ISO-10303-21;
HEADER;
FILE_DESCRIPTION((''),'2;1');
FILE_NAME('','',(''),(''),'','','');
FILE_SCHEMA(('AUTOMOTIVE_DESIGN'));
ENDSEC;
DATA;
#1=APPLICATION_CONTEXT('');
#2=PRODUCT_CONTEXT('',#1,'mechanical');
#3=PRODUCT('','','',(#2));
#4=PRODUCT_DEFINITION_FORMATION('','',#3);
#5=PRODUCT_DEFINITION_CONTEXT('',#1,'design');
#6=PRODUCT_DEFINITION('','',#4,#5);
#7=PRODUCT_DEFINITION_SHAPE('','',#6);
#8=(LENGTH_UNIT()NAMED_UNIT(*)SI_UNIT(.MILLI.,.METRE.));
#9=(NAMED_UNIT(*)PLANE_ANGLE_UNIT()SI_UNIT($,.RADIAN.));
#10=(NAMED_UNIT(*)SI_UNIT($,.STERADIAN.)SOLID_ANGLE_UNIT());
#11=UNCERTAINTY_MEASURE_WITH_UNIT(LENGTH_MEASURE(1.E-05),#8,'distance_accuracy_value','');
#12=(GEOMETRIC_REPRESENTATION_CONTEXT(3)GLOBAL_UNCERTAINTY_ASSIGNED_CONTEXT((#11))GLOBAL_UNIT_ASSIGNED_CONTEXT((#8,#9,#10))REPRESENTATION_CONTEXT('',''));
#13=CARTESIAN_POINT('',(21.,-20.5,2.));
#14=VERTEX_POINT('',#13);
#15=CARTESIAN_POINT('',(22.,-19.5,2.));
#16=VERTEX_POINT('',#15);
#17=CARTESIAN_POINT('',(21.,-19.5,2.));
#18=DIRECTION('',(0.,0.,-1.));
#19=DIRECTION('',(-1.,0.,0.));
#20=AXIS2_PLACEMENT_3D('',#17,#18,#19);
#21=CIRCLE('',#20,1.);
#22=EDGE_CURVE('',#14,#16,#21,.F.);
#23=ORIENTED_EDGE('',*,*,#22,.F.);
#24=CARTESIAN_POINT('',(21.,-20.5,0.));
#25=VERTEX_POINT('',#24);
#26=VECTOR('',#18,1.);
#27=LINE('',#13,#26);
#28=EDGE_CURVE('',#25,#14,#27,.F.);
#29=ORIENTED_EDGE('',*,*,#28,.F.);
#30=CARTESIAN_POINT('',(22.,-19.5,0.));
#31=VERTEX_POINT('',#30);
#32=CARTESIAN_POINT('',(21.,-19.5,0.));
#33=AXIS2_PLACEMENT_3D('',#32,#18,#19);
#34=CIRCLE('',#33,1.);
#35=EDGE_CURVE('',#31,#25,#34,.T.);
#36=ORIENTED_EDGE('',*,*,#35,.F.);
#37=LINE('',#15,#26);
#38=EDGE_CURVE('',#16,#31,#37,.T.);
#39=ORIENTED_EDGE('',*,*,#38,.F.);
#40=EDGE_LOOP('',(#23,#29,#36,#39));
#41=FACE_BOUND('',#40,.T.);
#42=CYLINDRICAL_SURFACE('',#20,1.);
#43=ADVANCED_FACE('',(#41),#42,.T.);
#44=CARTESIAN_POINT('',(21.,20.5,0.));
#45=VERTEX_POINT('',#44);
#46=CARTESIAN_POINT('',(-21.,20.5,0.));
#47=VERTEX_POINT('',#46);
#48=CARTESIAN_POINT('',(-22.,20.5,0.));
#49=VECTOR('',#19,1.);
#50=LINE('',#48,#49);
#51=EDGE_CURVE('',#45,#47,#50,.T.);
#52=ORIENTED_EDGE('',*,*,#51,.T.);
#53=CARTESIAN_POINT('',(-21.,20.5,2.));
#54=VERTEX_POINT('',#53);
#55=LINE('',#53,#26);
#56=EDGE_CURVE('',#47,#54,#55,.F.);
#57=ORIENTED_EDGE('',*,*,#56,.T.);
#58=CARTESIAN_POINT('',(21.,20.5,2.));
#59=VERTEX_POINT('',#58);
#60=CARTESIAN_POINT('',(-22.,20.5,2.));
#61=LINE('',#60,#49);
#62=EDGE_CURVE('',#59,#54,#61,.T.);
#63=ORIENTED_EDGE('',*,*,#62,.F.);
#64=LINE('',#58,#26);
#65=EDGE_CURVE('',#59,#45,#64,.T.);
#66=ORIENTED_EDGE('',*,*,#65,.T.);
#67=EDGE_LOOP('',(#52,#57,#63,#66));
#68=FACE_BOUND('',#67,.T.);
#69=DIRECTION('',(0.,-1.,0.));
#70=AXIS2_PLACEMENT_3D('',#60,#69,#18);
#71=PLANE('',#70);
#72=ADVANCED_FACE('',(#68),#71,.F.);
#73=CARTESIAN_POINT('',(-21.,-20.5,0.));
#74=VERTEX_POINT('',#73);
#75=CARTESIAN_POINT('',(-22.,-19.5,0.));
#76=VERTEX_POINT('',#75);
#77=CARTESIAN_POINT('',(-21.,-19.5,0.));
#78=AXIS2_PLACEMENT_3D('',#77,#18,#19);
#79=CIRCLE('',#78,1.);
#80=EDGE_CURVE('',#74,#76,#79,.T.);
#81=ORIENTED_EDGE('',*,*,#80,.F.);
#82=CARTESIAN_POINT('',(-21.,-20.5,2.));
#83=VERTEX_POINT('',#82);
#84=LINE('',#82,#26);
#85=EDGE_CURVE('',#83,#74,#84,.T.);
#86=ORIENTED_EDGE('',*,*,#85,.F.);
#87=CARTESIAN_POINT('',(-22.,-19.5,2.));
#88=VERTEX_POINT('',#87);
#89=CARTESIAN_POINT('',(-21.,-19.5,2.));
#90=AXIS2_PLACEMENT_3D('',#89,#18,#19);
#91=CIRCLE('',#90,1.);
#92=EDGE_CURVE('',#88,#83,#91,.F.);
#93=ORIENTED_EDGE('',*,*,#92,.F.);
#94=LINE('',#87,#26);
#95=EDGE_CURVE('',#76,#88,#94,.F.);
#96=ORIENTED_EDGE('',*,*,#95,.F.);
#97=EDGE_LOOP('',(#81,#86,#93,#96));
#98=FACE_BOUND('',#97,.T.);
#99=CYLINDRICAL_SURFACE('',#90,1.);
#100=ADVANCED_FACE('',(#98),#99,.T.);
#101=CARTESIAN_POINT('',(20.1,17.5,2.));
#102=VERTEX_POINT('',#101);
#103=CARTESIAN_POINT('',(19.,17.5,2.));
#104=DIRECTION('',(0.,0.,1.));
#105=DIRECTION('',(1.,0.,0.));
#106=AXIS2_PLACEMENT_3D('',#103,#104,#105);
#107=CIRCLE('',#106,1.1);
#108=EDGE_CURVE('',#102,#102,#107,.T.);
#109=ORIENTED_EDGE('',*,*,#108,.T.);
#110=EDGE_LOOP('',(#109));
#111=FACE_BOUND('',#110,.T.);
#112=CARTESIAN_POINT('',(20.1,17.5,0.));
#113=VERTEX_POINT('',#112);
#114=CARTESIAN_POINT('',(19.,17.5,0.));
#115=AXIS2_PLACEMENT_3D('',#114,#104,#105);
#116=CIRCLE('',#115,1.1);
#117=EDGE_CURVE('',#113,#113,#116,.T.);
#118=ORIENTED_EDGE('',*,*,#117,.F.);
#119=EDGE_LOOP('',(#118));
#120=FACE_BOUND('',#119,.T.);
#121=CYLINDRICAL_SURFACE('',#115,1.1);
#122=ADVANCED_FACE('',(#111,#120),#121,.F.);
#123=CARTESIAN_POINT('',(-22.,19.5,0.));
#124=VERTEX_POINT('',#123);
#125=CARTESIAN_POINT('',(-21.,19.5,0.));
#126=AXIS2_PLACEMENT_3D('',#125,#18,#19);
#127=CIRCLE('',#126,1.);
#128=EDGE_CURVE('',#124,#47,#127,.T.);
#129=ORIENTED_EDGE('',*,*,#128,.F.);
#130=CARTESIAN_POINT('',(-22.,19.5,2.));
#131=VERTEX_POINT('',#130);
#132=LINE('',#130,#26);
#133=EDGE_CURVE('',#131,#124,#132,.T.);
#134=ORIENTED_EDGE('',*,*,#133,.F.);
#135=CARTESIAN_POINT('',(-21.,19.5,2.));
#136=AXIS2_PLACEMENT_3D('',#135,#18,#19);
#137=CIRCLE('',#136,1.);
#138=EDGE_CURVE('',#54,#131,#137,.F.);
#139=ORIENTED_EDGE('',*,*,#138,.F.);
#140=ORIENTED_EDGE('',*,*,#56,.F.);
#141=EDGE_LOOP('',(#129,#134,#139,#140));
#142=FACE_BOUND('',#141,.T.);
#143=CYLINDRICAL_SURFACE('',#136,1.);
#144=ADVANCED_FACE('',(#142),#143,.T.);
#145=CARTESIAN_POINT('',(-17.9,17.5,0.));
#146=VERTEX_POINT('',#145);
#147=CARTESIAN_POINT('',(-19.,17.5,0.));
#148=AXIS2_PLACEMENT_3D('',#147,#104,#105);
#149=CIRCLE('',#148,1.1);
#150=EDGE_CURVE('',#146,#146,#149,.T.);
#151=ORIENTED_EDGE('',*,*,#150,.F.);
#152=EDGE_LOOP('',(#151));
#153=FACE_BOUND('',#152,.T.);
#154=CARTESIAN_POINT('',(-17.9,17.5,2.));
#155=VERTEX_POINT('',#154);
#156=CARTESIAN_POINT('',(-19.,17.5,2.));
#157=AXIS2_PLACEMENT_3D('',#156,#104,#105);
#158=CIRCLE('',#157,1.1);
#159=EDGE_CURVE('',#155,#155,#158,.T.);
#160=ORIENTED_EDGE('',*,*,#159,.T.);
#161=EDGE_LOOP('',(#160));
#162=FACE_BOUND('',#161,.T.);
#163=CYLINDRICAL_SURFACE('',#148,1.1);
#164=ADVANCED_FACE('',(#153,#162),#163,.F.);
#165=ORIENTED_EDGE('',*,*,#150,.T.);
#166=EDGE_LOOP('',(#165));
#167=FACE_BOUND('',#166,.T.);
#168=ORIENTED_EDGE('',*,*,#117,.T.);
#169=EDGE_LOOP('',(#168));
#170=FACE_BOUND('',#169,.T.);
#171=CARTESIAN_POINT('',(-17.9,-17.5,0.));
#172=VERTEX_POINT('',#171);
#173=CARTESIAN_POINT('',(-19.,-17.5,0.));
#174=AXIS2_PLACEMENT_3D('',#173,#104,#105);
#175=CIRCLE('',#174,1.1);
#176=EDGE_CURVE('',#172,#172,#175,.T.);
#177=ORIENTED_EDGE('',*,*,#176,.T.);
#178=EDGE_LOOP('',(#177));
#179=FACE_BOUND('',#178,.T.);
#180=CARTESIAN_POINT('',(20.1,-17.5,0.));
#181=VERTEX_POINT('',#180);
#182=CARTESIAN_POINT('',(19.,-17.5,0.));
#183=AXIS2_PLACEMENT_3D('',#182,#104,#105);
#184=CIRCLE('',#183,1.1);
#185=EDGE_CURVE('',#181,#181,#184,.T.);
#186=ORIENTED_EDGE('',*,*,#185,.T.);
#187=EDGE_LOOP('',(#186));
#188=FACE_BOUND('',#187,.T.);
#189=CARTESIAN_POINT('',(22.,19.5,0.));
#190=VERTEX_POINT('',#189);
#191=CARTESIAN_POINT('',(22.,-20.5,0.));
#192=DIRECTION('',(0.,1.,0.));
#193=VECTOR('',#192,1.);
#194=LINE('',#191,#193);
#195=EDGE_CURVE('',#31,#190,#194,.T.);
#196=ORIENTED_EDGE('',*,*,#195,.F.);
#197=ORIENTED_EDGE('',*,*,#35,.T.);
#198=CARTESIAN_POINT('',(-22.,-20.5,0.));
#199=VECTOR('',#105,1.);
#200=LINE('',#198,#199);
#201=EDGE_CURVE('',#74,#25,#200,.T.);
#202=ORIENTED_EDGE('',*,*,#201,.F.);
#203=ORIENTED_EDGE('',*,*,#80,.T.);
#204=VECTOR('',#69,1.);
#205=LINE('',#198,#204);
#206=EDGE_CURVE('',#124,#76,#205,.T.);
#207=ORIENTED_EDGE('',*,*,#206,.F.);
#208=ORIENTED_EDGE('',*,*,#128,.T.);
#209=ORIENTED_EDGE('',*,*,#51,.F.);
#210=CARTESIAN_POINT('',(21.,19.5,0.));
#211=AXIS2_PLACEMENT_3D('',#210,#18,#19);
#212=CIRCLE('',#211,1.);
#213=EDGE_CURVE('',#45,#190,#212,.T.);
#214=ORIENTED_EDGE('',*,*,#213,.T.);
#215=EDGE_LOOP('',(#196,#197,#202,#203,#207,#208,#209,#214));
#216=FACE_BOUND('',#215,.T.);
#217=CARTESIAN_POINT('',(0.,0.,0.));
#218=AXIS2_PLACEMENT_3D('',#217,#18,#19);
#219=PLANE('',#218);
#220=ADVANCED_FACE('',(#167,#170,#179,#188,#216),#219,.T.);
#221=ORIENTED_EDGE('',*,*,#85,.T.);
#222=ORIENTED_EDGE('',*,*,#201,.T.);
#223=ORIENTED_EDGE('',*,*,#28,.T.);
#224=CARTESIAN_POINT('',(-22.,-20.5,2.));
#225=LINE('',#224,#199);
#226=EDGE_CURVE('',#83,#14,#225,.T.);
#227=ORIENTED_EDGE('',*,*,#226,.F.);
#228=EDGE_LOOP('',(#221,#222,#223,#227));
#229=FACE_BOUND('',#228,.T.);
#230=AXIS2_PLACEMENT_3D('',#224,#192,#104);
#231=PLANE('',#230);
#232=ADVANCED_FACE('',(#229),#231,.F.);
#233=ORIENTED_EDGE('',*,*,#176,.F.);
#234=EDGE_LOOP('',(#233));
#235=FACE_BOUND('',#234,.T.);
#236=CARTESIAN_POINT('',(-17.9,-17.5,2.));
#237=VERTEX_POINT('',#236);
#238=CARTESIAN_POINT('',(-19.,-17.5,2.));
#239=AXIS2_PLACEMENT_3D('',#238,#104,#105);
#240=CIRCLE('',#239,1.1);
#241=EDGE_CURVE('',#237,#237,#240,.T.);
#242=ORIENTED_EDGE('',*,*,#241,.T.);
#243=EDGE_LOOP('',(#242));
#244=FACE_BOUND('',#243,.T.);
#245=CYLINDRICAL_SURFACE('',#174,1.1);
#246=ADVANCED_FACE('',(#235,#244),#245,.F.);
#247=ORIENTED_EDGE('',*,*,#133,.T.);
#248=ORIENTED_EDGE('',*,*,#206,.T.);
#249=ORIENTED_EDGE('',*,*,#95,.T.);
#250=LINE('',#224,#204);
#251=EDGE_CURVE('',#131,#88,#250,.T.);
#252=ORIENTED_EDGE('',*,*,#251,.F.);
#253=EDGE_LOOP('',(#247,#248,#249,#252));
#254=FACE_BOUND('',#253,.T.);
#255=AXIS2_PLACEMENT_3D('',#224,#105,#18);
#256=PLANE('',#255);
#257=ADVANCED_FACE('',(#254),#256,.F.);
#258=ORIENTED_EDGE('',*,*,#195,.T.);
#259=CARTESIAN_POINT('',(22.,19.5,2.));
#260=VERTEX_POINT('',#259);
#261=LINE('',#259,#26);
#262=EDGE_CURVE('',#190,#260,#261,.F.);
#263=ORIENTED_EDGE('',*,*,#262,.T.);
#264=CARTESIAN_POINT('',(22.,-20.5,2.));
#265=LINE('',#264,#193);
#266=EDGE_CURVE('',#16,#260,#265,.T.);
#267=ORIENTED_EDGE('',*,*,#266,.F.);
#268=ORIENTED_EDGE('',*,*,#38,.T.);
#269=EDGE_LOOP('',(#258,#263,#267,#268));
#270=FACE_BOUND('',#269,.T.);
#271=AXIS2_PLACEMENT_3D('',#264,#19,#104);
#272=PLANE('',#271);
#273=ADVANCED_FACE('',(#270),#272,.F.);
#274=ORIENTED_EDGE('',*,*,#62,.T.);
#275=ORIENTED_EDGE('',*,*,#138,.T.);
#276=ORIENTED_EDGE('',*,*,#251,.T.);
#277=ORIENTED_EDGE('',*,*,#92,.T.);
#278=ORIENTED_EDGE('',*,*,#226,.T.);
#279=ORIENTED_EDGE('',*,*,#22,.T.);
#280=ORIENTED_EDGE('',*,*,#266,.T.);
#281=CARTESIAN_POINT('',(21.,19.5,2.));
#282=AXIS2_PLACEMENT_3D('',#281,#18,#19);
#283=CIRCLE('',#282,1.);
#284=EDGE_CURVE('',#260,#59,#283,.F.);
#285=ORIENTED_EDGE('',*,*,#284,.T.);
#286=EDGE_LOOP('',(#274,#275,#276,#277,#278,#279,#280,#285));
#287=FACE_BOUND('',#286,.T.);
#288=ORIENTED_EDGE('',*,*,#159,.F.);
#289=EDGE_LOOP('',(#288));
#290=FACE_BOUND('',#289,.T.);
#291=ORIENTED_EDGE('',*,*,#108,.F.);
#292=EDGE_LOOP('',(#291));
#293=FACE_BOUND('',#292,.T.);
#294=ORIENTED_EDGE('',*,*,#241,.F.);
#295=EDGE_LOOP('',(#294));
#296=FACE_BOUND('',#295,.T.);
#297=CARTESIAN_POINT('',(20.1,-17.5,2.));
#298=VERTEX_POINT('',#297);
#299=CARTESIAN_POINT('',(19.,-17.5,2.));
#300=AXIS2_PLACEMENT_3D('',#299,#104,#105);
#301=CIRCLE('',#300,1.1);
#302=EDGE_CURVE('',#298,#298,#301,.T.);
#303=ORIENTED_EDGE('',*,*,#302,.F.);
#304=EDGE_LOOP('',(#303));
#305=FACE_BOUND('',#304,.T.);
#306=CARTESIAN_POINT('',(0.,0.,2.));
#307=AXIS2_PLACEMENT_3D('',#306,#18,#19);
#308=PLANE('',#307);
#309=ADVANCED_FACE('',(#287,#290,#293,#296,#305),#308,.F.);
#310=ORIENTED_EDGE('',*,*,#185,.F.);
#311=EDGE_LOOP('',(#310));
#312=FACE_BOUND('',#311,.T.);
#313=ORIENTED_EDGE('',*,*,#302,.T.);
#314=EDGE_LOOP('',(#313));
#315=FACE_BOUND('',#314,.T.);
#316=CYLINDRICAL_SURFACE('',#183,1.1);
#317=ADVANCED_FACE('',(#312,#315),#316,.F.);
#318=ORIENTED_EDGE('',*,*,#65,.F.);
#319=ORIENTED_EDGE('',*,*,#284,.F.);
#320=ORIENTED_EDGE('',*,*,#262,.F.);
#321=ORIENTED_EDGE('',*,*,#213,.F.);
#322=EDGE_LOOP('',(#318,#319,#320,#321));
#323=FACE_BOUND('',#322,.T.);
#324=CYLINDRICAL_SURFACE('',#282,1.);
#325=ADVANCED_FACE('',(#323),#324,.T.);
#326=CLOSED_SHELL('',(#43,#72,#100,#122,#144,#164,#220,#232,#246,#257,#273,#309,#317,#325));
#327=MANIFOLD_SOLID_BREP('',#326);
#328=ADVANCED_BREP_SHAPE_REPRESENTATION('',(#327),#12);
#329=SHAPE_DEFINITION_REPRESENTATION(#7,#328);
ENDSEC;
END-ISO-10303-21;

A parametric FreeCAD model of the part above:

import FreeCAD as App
import Part
import Sketcher

V = App.Vector


def edges_at(feature, points):
    """Names of the edges that pass closest to the given points."""
    edges = feature.Shape.Edges
    near = lambda p: min(range(len(edges)), key=lambda i: edges[i].distToShape(Part.Vertex(*p))[0])
    return sorted({f"Edge{near(p) + 1}" for p in points})


def add_polygon(sketch, points):
    """Adds a closed chain of lines whose ends are joined by coincident constraints."""
    first, n = sketch.GeometryCount, len(points)
    for a, b in zip(points, points[1:] + points[:1]):
        sketch.addGeometry(Part.LineSegment(App.Vector(*a, 0), App.Vector(*b, 0)), False)
    for i in range(n):
        sketch.addConstraint(Sketcher.Constraint("Coincident", first + i, 2, first + (i + 1) % n, 1))

doc = App.newDocument("Part")
body = doc.addObject("PartDesign::Body", "Body")

# Sketch on XY plane
sketch1 = doc.addObject("Sketcher::SketchObject", "Sketch")
body.addObject(sketch1)
sketch1.AttachmentSupport = (doc.XY_Plane, [""])
sketch1.MapMode = "FlatFace"
add_polygon(sketch1, [(-22, 20), (-22, -20), (22, -20), (22, 20)])  # lines 0-3
sketch1.addConstraint([
    Sketcher.Constraint("Vertical", 0),
    Sketcher.Constraint("Horizontal", 1),
    Sketcher.Constraint("Vertical", 2),
    Sketcher.Constraint("Horizontal", 3),
    Sketcher.Constraint("Symmetric", 0, 2, 2, 2, -1, 1),
    Sketcher.Constraint("DistanceX", 1, 1, 1, 2, 44.0),
    Sketcher.Constraint("DistanceY", 0, 2, 0, 1, 41.0),
])
pad1 = doc.addObject("PartDesign::Pad", "Pad")
body.addObject(pad1)
pad1.Profile = sketch1
pad1.Length = 2

# Sketch on XY plane
sketch2 = doc.addObject("Sketcher::SketchObject", "Sketch001")
body.addObject(sketch2)
sketch2.AttachmentSupport = (doc.XY_Plane, [""])
sketch2.MapMode = "FlatFace"
sketch2.AttachmentOffset = App.Placement(V(0, 0, 2), App.Rotation())
sketch2.addGeometry([
    Part.Circle(V(19, 17.5, 0), V(0, 0, 1), 1.1),
    Part.Circle(V(-19, 17.5, 0), V(0, 0, 1), 1.1),
    Part.Circle(V(-19, -17.5, 0), V(0, 0, 1), 1.1),
    Part.Circle(V(19, -17.5, 0), V(0, 0, 1), 1.1),
], False)
sketch2.addConstraint([
    Sketcher.Constraint("Equal", 0, 1),
    Sketcher.Constraint("Equal", 1, 2),
    Sketcher.Constraint("Equal", 2, 3),
    Sketcher.Constraint("Symmetric", 0, 3, 2, 3, -1, 1),
    Sketcher.Constraint("Symmetric", 1, 3, 3, 3, -1, 1),
    Sketcher.Constraint("Symmetric", 0, 3, 1, 3, -2),
    Sketcher.Constraint("Diameter", 0, 2.2),
    Sketcher.Constraint("DistanceX", -1, 1, 0, 3, 19.0),
    Sketcher.Constraint("DistanceY", 2, 3, 1, 3, 35.0),
])
pocket1 = doc.addObject("PartDesign::Pocket", "Pocket")
body.addObject(pocket1)
pocket1.Profile = sketch2
pocket1.Length = 2
doc.recompute()

fillet = doc.addObject("PartDesign::Fillet", "Fillet")
body.addObject(fillet)
fillet.Base = (pocket1, edges_at(pocket1, [
    (22, -20.5, 1),
    (-22, -20.5, 1),
    (-22, 20.5, 1),
    (22, 20.5, 1),
]))
fillet.Radius = 1

doc.recompute()
